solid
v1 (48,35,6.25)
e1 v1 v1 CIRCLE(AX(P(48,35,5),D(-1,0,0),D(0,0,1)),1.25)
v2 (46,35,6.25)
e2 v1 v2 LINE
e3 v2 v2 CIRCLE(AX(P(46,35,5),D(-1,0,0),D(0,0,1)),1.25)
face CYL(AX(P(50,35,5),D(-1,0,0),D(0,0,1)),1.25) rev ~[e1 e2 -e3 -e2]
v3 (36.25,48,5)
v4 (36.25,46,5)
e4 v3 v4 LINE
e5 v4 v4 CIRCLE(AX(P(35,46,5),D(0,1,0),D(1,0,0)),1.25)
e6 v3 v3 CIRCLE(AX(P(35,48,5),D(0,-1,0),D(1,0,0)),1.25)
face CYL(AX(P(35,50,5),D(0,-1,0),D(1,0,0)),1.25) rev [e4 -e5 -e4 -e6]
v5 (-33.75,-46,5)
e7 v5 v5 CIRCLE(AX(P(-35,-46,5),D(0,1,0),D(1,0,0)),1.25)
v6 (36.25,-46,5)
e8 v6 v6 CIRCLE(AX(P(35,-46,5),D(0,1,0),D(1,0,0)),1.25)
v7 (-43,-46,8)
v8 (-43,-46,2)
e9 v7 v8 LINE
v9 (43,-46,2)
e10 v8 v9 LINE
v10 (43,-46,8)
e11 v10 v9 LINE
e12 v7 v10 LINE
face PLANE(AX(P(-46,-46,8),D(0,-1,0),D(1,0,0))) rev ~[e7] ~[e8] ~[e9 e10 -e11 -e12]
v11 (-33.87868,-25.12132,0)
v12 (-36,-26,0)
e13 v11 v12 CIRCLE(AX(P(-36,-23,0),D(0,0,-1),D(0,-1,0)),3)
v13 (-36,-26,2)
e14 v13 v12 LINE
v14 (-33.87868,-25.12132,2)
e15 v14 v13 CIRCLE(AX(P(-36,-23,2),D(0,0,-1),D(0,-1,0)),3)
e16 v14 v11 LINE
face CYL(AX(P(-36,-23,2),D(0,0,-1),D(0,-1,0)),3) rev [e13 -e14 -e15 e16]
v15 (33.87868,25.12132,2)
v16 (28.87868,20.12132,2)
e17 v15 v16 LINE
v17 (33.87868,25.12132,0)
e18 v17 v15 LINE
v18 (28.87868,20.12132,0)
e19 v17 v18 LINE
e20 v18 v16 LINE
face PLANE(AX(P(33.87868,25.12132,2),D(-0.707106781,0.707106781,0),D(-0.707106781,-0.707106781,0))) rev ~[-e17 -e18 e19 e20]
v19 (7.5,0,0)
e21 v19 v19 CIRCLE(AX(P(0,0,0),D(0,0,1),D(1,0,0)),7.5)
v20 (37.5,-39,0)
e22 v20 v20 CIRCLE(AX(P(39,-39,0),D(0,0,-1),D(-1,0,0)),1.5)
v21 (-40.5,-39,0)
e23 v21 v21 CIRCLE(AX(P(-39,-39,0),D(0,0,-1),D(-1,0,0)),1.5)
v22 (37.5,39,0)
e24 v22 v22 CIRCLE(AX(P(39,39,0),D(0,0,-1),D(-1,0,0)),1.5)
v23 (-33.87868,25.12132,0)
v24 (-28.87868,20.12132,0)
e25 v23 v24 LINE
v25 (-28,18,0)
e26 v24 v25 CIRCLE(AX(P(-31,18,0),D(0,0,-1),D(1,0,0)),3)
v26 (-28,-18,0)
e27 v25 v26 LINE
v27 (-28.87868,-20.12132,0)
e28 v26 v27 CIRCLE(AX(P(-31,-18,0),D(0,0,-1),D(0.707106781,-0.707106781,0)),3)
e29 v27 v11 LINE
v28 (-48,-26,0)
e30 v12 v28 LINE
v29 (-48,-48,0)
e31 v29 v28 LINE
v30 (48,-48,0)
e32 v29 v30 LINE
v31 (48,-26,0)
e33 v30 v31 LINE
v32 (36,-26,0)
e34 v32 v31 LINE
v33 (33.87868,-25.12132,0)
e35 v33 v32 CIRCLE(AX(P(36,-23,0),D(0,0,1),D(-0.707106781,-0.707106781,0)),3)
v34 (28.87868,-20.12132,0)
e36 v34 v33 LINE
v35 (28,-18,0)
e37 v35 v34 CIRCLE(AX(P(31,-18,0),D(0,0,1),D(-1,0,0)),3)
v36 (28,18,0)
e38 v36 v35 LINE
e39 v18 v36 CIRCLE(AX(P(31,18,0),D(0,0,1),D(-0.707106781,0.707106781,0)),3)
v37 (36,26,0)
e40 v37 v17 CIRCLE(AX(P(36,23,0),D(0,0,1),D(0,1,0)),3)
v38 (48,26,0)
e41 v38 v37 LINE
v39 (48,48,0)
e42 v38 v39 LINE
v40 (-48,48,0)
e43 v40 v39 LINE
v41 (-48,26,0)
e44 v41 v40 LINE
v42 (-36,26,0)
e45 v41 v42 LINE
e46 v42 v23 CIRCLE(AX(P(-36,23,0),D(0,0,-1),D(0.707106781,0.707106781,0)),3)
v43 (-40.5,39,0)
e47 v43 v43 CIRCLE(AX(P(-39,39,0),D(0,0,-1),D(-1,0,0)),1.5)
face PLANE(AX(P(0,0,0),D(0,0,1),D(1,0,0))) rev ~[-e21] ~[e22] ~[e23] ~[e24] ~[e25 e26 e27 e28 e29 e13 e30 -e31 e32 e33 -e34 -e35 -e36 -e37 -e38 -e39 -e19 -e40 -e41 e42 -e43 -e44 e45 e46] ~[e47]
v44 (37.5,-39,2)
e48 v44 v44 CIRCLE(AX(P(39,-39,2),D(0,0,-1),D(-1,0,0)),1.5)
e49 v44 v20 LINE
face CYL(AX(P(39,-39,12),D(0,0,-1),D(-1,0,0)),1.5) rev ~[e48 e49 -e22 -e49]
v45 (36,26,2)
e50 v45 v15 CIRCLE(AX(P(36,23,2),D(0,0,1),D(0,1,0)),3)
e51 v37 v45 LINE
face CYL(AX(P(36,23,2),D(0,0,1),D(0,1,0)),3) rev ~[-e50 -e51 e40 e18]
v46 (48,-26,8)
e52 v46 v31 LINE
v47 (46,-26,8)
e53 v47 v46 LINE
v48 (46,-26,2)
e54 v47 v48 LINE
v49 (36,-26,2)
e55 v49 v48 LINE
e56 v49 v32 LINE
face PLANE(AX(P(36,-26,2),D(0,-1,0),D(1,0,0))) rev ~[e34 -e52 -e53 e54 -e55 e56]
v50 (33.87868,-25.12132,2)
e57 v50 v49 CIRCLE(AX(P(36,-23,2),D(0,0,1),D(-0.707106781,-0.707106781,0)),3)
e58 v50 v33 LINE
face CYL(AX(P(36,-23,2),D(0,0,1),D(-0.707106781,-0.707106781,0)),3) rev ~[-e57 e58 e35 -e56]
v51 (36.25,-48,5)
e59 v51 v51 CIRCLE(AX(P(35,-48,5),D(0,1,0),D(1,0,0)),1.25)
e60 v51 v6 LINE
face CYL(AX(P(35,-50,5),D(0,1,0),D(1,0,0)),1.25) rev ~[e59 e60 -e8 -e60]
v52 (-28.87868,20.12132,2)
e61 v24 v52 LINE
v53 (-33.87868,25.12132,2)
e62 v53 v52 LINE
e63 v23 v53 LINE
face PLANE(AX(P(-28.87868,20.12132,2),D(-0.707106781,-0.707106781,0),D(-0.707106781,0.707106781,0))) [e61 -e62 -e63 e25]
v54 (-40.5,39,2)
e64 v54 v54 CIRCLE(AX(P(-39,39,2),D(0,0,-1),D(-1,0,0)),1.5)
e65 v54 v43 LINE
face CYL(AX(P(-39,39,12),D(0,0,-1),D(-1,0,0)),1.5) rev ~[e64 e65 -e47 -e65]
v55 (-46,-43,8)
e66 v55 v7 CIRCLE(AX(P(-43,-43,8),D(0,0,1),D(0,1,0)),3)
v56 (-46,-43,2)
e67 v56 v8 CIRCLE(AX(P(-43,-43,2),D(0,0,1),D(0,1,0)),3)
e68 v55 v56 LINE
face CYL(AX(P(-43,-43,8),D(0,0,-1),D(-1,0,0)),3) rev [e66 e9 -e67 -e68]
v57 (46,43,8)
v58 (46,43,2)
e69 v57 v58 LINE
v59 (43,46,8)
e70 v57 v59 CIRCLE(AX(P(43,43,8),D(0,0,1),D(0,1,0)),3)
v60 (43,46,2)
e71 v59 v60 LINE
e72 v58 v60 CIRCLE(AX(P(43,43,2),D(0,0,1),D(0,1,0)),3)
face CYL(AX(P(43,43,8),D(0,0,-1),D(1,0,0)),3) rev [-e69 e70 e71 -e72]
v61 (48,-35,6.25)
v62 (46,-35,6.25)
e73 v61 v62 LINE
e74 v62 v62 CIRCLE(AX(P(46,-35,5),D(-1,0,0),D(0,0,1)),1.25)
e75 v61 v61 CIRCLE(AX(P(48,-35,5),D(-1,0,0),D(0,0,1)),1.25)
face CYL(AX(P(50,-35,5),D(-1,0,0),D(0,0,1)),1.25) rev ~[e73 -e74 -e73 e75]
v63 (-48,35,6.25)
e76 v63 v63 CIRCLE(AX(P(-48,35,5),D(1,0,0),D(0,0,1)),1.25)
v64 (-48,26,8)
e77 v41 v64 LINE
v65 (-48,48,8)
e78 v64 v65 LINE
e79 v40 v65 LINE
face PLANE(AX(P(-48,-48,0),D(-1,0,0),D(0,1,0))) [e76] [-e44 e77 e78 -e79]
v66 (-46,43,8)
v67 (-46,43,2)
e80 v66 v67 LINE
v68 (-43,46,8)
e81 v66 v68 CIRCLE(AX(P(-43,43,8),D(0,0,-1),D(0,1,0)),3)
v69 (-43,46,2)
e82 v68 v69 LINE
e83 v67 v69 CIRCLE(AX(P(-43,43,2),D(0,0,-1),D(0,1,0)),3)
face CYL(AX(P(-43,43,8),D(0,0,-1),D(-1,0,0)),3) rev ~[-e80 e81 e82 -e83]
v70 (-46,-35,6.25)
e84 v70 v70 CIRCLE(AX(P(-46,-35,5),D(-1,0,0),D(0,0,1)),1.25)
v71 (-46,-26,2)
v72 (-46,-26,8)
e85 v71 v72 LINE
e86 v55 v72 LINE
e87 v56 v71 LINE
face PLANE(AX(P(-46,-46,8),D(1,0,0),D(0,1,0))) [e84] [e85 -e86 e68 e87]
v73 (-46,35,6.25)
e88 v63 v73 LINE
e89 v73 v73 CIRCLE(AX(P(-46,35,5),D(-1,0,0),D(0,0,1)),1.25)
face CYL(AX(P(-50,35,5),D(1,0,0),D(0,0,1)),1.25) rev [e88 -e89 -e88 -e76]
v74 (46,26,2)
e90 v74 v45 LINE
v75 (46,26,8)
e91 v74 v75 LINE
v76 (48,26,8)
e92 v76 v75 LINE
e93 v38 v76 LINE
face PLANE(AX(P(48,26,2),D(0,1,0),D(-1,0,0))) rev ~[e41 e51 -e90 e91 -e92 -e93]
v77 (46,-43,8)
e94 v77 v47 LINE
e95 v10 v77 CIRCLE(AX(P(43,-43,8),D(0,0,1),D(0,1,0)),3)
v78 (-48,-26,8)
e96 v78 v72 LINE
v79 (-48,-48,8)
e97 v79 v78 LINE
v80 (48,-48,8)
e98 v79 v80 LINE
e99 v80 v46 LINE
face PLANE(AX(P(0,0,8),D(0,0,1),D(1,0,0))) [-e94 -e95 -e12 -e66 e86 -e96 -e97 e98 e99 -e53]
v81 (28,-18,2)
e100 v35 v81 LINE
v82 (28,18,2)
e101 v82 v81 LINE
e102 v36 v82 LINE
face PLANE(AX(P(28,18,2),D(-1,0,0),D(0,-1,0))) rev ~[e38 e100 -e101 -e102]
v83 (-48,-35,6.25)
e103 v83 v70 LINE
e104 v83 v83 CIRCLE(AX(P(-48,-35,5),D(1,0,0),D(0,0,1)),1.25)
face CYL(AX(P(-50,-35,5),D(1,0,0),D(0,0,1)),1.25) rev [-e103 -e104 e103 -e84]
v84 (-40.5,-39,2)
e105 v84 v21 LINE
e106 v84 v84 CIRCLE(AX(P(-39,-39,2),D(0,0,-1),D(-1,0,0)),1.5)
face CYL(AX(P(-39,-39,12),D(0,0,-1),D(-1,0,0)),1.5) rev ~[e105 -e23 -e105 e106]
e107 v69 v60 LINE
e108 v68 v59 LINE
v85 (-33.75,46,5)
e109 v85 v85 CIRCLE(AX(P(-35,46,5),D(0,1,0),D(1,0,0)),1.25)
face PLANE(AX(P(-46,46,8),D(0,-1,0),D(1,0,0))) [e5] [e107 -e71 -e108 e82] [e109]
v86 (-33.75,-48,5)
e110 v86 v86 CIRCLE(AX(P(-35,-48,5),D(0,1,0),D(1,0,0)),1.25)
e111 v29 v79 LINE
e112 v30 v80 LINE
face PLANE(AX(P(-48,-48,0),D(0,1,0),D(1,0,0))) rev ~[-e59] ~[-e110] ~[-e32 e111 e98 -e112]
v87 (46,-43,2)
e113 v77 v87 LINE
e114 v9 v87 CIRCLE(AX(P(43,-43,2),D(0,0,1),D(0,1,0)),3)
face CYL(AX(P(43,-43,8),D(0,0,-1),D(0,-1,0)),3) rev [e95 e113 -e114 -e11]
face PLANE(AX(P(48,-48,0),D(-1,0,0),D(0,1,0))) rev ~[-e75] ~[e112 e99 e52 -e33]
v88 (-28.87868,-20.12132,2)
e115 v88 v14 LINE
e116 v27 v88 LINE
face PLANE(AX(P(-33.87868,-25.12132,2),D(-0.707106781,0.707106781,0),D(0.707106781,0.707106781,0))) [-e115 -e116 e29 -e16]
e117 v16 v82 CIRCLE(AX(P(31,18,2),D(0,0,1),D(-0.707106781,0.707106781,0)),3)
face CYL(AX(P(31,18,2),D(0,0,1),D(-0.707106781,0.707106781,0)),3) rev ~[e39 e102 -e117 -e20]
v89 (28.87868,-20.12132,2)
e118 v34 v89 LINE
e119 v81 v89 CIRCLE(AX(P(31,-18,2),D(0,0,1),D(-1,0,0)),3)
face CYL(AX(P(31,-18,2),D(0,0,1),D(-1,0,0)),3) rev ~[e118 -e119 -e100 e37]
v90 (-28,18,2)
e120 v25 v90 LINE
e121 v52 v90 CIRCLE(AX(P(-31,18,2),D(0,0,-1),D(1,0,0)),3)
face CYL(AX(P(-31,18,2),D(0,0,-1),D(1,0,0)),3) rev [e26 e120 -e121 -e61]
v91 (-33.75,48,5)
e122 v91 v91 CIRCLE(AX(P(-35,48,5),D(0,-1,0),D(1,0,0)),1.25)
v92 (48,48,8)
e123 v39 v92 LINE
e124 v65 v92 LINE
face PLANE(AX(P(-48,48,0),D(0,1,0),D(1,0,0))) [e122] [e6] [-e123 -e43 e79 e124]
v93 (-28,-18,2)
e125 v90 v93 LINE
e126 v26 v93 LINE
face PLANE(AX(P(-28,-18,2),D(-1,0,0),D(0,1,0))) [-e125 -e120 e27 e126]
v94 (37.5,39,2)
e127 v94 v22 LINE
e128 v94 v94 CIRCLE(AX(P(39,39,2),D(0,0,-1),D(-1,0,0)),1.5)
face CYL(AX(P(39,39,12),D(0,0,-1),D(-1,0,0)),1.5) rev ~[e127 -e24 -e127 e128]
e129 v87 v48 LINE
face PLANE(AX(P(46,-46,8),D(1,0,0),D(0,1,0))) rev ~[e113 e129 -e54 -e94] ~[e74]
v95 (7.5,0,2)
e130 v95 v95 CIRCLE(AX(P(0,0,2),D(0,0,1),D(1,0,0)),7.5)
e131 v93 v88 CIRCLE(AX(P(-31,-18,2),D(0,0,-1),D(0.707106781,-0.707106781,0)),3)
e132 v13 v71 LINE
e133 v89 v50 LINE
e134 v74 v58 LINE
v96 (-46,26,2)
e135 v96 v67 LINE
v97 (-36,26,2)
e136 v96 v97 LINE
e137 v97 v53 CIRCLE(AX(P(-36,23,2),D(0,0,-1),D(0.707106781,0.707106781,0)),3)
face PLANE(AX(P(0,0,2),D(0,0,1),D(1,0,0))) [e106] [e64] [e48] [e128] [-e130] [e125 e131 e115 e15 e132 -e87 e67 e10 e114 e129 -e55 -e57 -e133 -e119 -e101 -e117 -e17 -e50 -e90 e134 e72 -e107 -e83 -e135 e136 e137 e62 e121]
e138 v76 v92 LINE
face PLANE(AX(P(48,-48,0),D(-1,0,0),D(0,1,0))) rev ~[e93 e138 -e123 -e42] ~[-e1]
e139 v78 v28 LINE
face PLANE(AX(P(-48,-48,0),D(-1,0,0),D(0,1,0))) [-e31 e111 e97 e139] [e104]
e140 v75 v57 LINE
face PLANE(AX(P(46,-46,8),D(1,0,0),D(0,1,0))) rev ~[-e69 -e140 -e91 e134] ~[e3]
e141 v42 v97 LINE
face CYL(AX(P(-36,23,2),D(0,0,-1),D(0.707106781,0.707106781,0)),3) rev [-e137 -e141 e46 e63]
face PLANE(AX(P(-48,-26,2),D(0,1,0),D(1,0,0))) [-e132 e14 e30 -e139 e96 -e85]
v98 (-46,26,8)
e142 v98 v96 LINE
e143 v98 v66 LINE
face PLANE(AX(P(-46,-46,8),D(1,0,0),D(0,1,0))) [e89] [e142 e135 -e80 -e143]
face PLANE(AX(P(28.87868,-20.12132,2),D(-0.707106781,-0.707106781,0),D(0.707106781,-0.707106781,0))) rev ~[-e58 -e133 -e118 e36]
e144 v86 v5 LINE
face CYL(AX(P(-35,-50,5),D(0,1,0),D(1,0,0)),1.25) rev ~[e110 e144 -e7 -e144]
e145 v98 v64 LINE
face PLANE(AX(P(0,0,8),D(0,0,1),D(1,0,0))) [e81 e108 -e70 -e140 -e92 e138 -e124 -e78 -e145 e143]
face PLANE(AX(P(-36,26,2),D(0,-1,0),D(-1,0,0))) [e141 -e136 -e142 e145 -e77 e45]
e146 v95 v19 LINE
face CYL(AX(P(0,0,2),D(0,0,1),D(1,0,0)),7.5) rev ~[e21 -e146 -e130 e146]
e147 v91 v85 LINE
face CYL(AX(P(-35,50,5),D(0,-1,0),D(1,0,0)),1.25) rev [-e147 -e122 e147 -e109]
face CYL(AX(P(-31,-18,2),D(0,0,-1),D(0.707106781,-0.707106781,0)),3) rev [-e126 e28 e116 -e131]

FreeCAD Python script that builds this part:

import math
import FreeCAD as App
import Part
import Sketcher

V = App.Vector
Q = App.Units.Quantity


def edges_at(feature, points):
    """Names of the edges that pass closest to the given points."""
    edges = feature.Shape.Edges
    near = lambda p: min(range(len(edges)), key=lambda i: edges[i].distToShape(Part.Vertex(*p))[0])
    return sorted({f"Edge{near(p) + 1}" for p in points})

doc = App.newDocument("Part")
body = doc.addObject("PartDesign::Body", "Body")

# Sketch on XY plane
sketch1 = body.newObject("Sketcher::SketchObject", "Sketch")
sketch1.AttachmentSupport = (doc.getObject("XY_Plane"), [""])
sketch1.MapMode = "FlatFace"
sketch1.addGeometry([
    Part.LineSegment(V(-48, 48, 0), V(-48, -48, 0)),
    Part.LineSegment(V(-48, -48, 0), V(48, -48, 0)),
    Part.LineSegment(V(48, -48, 0), V(48, 48, 0)),
    Part.LineSegment(V(48, 48, 0), V(-48, 48, 0)),
], False)
sketch1.addConstraint([
    Sketcher.Constraint("Coincident", 0, 2, 1, 1),
    Sketcher.Constraint("Coincident", 1, 2, 2, 1),
    Sketcher.Constraint("Coincident", 2, 2, 3, 1),
    Sketcher.Constraint("Coincident", 3, 2, 0, 1),
    Sketcher.Constraint("Vertical", 0),
    Sketcher.Constraint("Horizontal", 1),
    Sketcher.Constraint("Vertical", 2),
    Sketcher.Constraint("Horizontal", 3),
    Sketcher.Constraint("Symmetric", 0, 2, 2, 2, -1, 1),
    Sketcher.Constraint("Equal", 3, 0),
    Sketcher.Constraint("DistanceX", 1, 1, 1, 2, Q("96 mm")),
])
pad1 = body.newObject("PartDesign::Pad", "Pad")
pad1.Profile = sketch1
pad1.Length = 8

# Sketch on XY plane
sketch2 = body.newObject("Sketcher::SketchObject", "Sketch001")
sketch2.AttachmentSupport = (doc.getObject("XY_Plane"), [""])
sketch2.MapMode = "FlatFace"
sketch2.AttachmentOffset = App.Placement(V(0, 0, 8), App.Rotation())
sketch2.addGeometry([
    Part.LineSegment(V(-46, 46, 0), V(-46, -46, 0)),
    Part.LineSegment(V(-46, -46, 0), V(46, -46, 0)),
    Part.LineSegment(V(46, -46, 0), V(46, 46, 0)),
    Part.LineSegment(V(46, 46, 0), V(-46, 46, 0)),
], False)
sketch2.addConstraint([
    Sketcher.Constraint("Coincident", 0, 2, 1, 1),
    Sketcher.Constraint("Coincident", 1, 2, 2, 1),
    Sketcher.Constraint("Coincident", 2, 2, 3, 1),
    Sketcher.Constraint("Coincident", 3, 2, 0, 1),
    Sketcher.Constraint("Vertical", 0),
    Sketcher.Constraint("Horizontal", 1),
    Sketcher.Constraint("Vertical", 2),
    Sketcher.Constraint("Horizontal", 3),
    Sketcher.Constraint("Symmetric", 0, 2, 2, 2, -1, 1),
    Sketcher.Constraint("Equal", 3, 0),
    Sketcher.Constraint("DistanceX", 1, 1, 1, 2, Q("92 mm")),
])
pocket1 = body.newObject("PartDesign::Pocket", "Pocket")
pocket1.Profile = sketch2
pocket1.Length = 6

# Sketch on XY plane
sketch3 = body.newObject("Sketcher::SketchObject", "Sketch002")
sketch3.AttachmentSupport = (doc.getObject("XY_Plane"), [""])
sketch3.MapMode = "FlatFace"
sketch3.AttachmentOffset = App.Placement(V(0, 0, 2), App.Rotation())
sketch3.addGeometry([
    Part.LineSegment(V(-33.87868, -25.12132, 0), V(-28.87868, -20.12132, 0)),  # 0
    Part.ArcOfCircle(Part.Circle(V(-31, -18, 0), V(0, 0, 1), 3), math.radians(-45), math.radians(0)),  # 1
    Part.LineSegment(V(-28, -18, 0), V(-28, 18, 0)),  # 2
    Part.ArcOfCircle(Part.Circle(V(-31, 18, 0), V(0, 0, 1), 3), math.radians(0), math.radians(45)),  # 3
    Part.LineSegment(V(-28.87868, 20.12132, 0), V(-33.87868, 25.12132, 0)),  # 4
    Part.ArcOfCircle(Part.Circle(V(-36, 23, 0), V(0, 0, 1), 3), math.radians(45), math.radians(90)),  # 5
    Part.LineSegment(V(-36, 26, 0), V(-48, 26, 0)),  # 6
    Part.LineSegment(V(-48, 26, 0), V(-48, -26, 0)),  # 7
    Part.LineSegment(V(-48, -26, 0), V(-36, -26, 0)),  # 8
    Part.ArcOfCircle(Part.Circle(V(-36, -23, 0), V(0, 0, 1), 3), math.radians(-90), math.radians(-45)),  # 9
    Part.LineSegment(V(48, -26, 0), V(48, 26, 0)),  # 10
    Part.LineSegment(V(48, 26, 0), V(36, 26, 0)),  # 11
    Part.ArcOfCircle(Part.Circle(V(36, 23, 0), V(0, 0, 1), 3), math.radians(90), math.radians(135)),  # 12
    Part.LineSegment(V(33.87868, 25.12132, 0), V(28.87868, 20.12132, 0)),  # 13
    Part.ArcOfCircle(Part.Circle(V(31, 18, 0), V(0, 0, 1), 3), math.radians(135), math.radians(180)),  # 14
    Part.LineSegment(V(28, 18, 0), V(28, -18, 0)),  # 15
    Part.ArcOfCircle(Part.Circle(V(31, -18, 0), V(0, 0, 1), 3), math.radians(180), math.radians(225)),  # 16
    Part.LineSegment(V(28.87868, -20.12132, 0), V(33.87868, -25.12132, 0)),  # 17
    Part.ArcOfCircle(Part.Circle(V(36, -23, 0), V(0, 0, 1), 3), math.radians(-135), math.radians(-90)),  # 18
    Part.LineSegment(V(36, -26, 0), V(48, -26, 0)),  # 19
], False)
sketch3.addConstraint([
    Sketcher.Constraint("Tangent", 0, 2, 1, 1),
    Sketcher.Constraint("Tangent", 1, 2, 2, 1),
    Sketcher.Constraint("Tangent", 2, 2, 3, 1),
    Sketcher.Constraint("Tangent", 3, 2, 4, 1),
    Sketcher.Constraint("Tangent", 4, 2, 5, 1),
    Sketcher.Constraint("Tangent", 5, 2, 6, 1),
    Sketcher.Constraint("Coincident", 6, 2, 7, 1),
    Sketcher.Constraint("Coincident", 7, 2, 8, 1),
    Sketcher.Constraint("Tangent", 8, 2, 9, 1),
    Sketcher.Constraint("Tangent", 9, 2, 0, 1),
    Sketcher.Constraint("Coincident", 10, 2, 11, 1),
    Sketcher.Constraint("Tangent", 11, 2, 12, 1),
    Sketcher.Constraint("Tangent", 12, 2, 13, 1),
    Sketcher.Constraint("Tangent", 13, 2, 14, 1),
    Sketcher.Constraint("Tangent", 14, 2, 15, 1),
    Sketcher.Constraint("Tangent", 15, 2, 16, 1),
    Sketcher.Constraint("Tangent", 16, 2, 17, 1),
    Sketcher.Constraint("Tangent", 17, 2, 18, 1),
    Sketcher.Constraint("Tangent", 18, 2, 19, 1),
    Sketcher.Constraint("Coincident", 19, 2, 10, 1),
    Sketcher.Constraint("Vertical", 2),
    Sketcher.Constraint("Horizontal", 6),
    Sketcher.Constraint("Vertical", 7),
    Sketcher.Constraint("Horizontal", 8),
    Sketcher.Constraint("Vertical", 10),
    Sketcher.Constraint("Horizontal", 11),
    Sketcher.Constraint("Vertical", 15),
    Sketcher.Constraint("Horizontal", 19),
    Sketcher.Constraint("Equal", 1, 3),
    Sketcher.Constraint("Equal", 3, 5),
    Sketcher.Constraint("Equal", 5, 9),
    Sketcher.Constraint("Equal", 9, 12),
    Sketcher.Constraint("Equal", 12, 14),
    Sketcher.Constraint("Equal", 14, 16),
    Sketcher.Constraint("Equal", 16, 18),
    Sketcher.Constraint("Symmetric", 9, 3, 12, 3, -1, 1),
    Sketcher.Constraint("Symmetric", 1, 3, 14, 3, -1, 1),
    Sketcher.Constraint("Symmetric", 5, 3, 18, 3, -1, 1),
    Sketcher.Constraint("Symmetric", 5, 3, 12, 3, -2),
    Sketcher.Constraint("Perpendicular", 0, 4),
    Sketcher.Constraint("Perpendicular", 13, 17),
    Sketcher.Constraint("Horizontal", 3, 3, 14, 3),
    Sketcher.Constraint("Equal", 8, 11),
    Sketcher.Constraint("Radius", 1, Q("3 mm")),
    Sketcher.Constraint("DistanceX", 6, 2, 6, 1, Q("12 mm")),
    Sketcher.Constraint("DistanceY", 2, 1, 2, 2, Q("36 mm")),
    Sketcher.Constraint("DistanceY", 7, 2, 7, 1, Q("52 mm")),
    Sketcher.Constraint("DistanceX", 1, 3, -1, 1, Q("31 mm")),
])
pocket2 = body.newObject("PartDesign::Pocket", "Pocket001")
pocket2.Profile = sketch3
pocket2.Length = 12
pocket2.Midplane = True

# Sketch on XY plane
sketch4 = body.newObject("Sketcher::SketchObject", "Sketch003")
sketch4.AttachmentSupport = (doc.getObject("XY_Plane"), [""])
sketch4.MapMode = "FlatFace"
sketch4.AttachmentOffset = App.Placement(V(0, 0, 2), App.Rotation())
sketch4.addGeometry(Part.Circle(V(0, 0, 0), V(0, 0, 1), 7.5), False)
sketch4.addConstraint([
    Sketcher.Constraint("Coincident", 0, 3, -1, 1),
    Sketcher.Constraint("Diameter", 0, Q("15 mm")),
])
pocket3 = body.newObject("PartDesign::Pocket", "Pocket002")
pocket3.Profile = sketch4
pocket3.Length = 6
doc.recompute()

fillet = body.newObject("PartDesign::Fillet", "Fillet")
fillet.Base = (pocket3, edges_at(pocket3, [
    (-46, -46, 5),
    (-46, 46, 5),
    (46, 46, 5),
    (46, -46, 5),
]))
fillet.Radius = 3

# Sketch on XZ plane
sketch5 = body.newObject("Sketcher::SketchObject", "Sketch004")
sketch5.AttachmentSupport = (doc.getObject("XZ_Plane"), [""])
sketch5.MapMode = "FlatFace"
sketch5.AttachmentOffset = App.Placement(V(0, 0, 48), App.Rotation())
sketch5.addGeometry([
    Part.Circle(V(-35, 5, 0), V(0, 0, 1), 1.25),
    Part.Circle(V(35, 5, 0), V(0, 0, 1), 1.25),
], False)
sketch5.addConstraint([
    Sketcher.Constraint("Equal", 0, 1),
    Sketcher.Constraint("Symmetric", 0, 3, 1, 3, -2),
    Sketcher.Constraint("Diameter", 0, Q("2.5 mm")),
    Sketcher.Constraint("DistanceX", 0, 3, -1, 1, Q("35 mm")),
    Sketcher.Constraint("DistanceY", -1, 1, 0, 3, Q("5 mm")),
])
doc.recompute()
hole = body.newObject("PartDesign::Hole", "Hole")
hole.Profile = sketch5
hole.ThreadType = "None"
hole.Diameter = 2.5
hole.DepthType = "Dimension"
hole.Depth = 2
hole.DrillPoint = "Flat"

# Sketch on YZ plane
sketch6 = body.newObject("Sketcher::SketchObject", "Sketch005")
sketch6.AttachmentSupport = (doc.getObject("YZ_Plane"), [""])
sketch6.MapMode = "FlatFace"
sketch6.AttachmentOffset = App.Placement(V(0, 0, 48), App.Rotation())
sketch6.addGeometry([
    Part.Circle(V(-35, 5, 0), V(0, 0, 1), 1.25),
    Part.Circle(V(35, 5, 0), V(0, 0, 1), 1.25),
], False)
sketch6.addConstraint([
    Sketcher.Constraint("Equal", 0, 1),
    Sketcher.Constraint("Symmetric", 0, 3, 1, 3, -2),
    Sketcher.Constraint("Diameter", 0, Q("2.5 mm")),
    Sketcher.Constraint("DistanceX", 0, 3, -1, 1, Q("35 mm")),
    Sketcher.Constraint("DistanceY", -1, 1, 0, 3, Q("5 mm")),
])
doc.recompute()
hole2 = body.newObject("PartDesign::Hole", "Hole001")
hole2.Profile = sketch6
hole2.ThreadType = "None"
hole2.Diameter = 2.5
hole2.DepthType = "Dimension"
hole2.Depth = 2
hole2.DrillPoint = "Flat"
doc.recompute()

mirrored = body.newObject("PartDesign::Mirrored", "Mirrored")
mirrored.Originals = [hole]
mirrored.MirrorPlane = (doc.getObject("XZ_Plane"), [""])
body.Tip = mirrored
doc.recompute()

mirrored2 = body.newObject("PartDesign::Mirrored", "Mirrored001")
mirrored2.Originals = [hole2]
mirrored2.MirrorPlane = (doc.getObject("YZ_Plane"), [""])
body.Tip = mirrored2

# Sketch on XY plane
sketch7 = body.newObject("Sketcher::SketchObject", "Sketch006")
sketch7.AttachmentSupport = (doc.getObject("XY_Plane"), [""])
sketch7.MapMode = "FlatFace"
sketch7.AttachmentOffset = App.Placement(V(0, 0, 2), App.Rotation())
sketch7.addGeometry([
    Part.Circle(V(-39, -39, 0), V(0, 0, 1), 1.5),
    Part.Circle(V(39, -39, 0), V(0, 0, 1), 1.5),
    Part.Circle(V(39, 39, 0), V(0, 0, 1), 1.5),
    Part.Circle(V(-39, 39, 0), V(0, 0, 1), 1.5),
], False)
sketch7.addConstraint([
    Sketcher.Constraint("Equal", 0, 1),
    Sketcher.Constraint("Equal", 1, 2),
    Sketcher.Constraint("Equal", 2, 3),
    Sketcher.Constraint("Symmetric", 0, 3, 2, 3, -1, 1),
    Sketcher.Constraint("Symmetric", 1, 3, 3, 3, -1, 1),
    Sketcher.Constraint("Symmetric", 0, 3, 1, 3, -2),
    Sketcher.Constraint("Diameter", 0, Q("3 mm")),
    Sketcher.Constraint("DistanceX", 0, 3, -1, 1, Q("39 mm")),
    Sketcher.Constraint("DistanceY", 0, 3, -1, 1, Q("39 mm")),
])
doc.recompute()
hole3 = body.newObject("PartDesign::Hole", "Hole002")
hole3.Profile = sketch7
hole3.ThreadType = "None"
hole3.Diameter = 3
hole3.DepthType = "Dimension"
hole3.Depth = 10
hole3.DrillPoint = "Angled"
hole3.DrillPointAngle = 118

doc.recompute()
